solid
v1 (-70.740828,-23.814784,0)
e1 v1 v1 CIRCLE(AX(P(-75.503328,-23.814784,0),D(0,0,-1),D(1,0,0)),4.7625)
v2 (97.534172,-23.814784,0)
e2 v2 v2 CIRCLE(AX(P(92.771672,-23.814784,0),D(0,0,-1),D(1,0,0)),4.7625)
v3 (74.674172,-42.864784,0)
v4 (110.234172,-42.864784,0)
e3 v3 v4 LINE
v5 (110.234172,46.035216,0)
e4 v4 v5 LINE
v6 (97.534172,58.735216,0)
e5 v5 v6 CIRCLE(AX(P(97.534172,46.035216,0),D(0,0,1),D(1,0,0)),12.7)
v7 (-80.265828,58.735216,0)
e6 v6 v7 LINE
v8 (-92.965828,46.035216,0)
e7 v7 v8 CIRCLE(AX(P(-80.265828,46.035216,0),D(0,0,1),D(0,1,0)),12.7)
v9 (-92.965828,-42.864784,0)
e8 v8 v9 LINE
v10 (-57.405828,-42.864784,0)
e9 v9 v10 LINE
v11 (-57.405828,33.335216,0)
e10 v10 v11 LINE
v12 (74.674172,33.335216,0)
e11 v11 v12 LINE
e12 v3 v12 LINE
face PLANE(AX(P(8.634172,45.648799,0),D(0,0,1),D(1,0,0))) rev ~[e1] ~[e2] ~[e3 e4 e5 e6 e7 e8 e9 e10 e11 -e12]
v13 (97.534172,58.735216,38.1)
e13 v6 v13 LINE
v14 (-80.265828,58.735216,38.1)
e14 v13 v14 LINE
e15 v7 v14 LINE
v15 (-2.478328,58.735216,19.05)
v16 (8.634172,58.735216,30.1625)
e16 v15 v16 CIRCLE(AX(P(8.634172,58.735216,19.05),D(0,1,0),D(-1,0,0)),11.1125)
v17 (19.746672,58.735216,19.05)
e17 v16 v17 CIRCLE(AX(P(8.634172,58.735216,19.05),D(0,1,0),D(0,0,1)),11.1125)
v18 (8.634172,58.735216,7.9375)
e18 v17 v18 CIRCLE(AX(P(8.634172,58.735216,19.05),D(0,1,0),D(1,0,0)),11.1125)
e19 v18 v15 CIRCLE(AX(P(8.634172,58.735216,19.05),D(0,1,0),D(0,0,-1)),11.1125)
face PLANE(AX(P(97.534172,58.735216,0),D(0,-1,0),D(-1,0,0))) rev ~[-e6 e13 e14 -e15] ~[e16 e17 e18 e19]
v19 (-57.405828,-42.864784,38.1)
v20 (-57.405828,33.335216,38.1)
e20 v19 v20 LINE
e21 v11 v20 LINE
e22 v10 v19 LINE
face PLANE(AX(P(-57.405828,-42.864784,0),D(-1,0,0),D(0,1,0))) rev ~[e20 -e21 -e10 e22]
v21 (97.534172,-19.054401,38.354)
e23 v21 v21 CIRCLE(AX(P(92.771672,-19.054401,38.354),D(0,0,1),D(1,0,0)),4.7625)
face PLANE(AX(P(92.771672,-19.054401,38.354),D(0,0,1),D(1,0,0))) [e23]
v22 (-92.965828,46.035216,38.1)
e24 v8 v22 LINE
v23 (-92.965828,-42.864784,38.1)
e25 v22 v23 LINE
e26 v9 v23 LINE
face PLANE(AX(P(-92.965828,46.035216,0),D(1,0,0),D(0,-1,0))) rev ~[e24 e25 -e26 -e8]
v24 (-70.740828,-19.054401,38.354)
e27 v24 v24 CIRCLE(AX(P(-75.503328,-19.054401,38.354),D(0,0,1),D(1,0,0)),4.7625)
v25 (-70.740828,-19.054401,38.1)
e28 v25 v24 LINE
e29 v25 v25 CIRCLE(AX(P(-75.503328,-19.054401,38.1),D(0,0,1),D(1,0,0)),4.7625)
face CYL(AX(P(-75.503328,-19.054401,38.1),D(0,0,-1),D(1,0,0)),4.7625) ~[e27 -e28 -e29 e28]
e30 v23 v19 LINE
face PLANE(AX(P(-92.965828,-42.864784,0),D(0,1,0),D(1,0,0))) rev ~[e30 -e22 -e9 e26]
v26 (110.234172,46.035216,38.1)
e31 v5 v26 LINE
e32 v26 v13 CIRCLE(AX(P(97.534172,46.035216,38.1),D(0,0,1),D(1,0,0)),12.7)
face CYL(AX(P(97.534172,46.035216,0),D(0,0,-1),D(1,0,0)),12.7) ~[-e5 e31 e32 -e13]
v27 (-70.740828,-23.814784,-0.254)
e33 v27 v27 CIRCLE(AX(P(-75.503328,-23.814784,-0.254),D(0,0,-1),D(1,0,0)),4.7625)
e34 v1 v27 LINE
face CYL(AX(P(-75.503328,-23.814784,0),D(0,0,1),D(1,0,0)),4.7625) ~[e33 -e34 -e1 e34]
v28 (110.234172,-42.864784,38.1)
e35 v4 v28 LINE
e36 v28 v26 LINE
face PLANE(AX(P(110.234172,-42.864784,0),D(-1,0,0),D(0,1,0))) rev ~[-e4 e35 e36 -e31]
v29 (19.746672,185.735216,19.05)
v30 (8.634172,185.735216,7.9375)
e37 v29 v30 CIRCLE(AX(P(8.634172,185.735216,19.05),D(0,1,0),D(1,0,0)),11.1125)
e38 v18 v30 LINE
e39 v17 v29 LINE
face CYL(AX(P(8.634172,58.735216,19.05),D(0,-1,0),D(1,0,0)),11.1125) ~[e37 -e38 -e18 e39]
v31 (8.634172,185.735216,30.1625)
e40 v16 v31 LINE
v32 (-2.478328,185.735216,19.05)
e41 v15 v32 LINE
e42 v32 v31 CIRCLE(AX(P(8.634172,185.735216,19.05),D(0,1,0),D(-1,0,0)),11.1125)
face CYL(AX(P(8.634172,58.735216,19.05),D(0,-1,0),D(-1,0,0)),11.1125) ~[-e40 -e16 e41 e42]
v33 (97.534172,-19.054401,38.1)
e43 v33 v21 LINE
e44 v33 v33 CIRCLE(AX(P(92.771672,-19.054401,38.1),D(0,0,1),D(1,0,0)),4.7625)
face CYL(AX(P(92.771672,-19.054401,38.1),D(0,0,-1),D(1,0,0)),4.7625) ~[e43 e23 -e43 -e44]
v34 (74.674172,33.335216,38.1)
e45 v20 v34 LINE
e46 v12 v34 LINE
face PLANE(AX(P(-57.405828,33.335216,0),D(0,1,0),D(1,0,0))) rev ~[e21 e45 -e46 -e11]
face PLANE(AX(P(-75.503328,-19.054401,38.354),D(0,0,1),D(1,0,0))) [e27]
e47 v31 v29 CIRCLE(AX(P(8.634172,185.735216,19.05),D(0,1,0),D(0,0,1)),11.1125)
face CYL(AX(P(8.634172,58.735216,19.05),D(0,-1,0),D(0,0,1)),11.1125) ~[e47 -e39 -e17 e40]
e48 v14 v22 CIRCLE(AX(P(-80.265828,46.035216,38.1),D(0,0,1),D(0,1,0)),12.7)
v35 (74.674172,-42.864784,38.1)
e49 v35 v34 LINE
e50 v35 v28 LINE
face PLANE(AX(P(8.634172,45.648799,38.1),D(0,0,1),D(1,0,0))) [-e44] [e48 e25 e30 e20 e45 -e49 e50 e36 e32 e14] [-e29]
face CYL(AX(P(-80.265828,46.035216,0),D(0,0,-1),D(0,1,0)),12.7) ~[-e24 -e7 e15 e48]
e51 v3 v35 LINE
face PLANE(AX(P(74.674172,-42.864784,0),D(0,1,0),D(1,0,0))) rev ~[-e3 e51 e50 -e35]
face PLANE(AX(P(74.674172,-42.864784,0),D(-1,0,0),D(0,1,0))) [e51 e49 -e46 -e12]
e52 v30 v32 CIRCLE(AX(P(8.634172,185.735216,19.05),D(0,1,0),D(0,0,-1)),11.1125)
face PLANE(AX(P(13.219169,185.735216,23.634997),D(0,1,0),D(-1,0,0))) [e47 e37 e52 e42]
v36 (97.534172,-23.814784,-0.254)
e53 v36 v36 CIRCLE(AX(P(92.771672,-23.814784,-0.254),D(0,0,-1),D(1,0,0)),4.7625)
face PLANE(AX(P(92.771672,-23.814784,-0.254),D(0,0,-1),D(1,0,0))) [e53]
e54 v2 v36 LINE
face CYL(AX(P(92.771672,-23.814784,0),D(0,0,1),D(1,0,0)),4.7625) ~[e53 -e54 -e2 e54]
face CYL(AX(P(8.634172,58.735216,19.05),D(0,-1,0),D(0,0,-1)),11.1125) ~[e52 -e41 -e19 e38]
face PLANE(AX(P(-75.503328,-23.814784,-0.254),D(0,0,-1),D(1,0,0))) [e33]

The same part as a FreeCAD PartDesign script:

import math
import FreeCAD as App
import Part
import Sketcher

V = App.Vector
Q = App.Units.Quantity

doc = App.newDocument("Part")
body = doc.addObject("PartDesign::Body", "Body")

# Sketch on XY plane
sketch1 = body.newObject("Sketcher::SketchObject", "Sketch")
sketch1.AttachmentSupport = (doc.getObject("XY_Plane"), [""])
sketch1.MapMode = "FlatFace"
sketch1.addGeometry([
    Part.LineSegment(V(97.534172, 58.735216, 0), V(-80.265828, 58.735216, 0)),  # 0
    Part.ArcOfCircle(Part.Circle(V(-80.265828, 46.035216, 0), V(0, 0, 1), 12.7), math.radians(90), math.radians(180)),  # 1
    Part.LineSegment(V(-92.965828, 46.035216, 0), V(-92.965828, -42.864784, 0)),  # 2
    Part.LineSegment(V(-92.965828, -42.864784, 0), V(-57.405828, -42.864784, 0)),  # 3
    Part.LineSegment(V(-57.405828, -42.864784, 0), V(-57.405828, 33.335216, 0)),  # 4
    Part.LineSegment(V(-57.405828, 33.335216, 0), V(74.674172, 33.335216, 0)),  # 5
    Part.LineSegment(V(74.674172, 33.335216, 0), V(74.674172, -42.864784, 0)),  # 6
    Part.LineSegment(V(74.674172, -42.864784, 0), V(110.234172, -42.864784, 0)),  # 7
    Part.LineSegment(V(110.234172, -42.864784, 0), V(110.234172, 46.035216, 0)),  # 8
    Part.ArcOfCircle(Part.Circle(V(97.534172, 46.035216, 0), V(0, 0, 1), 12.7), math.radians(0), math.radians(90)),  # 9
], False)
sketch1.addConstraint([
    Sketcher.Constraint("Tangent", 0, 2, 1, 1),
    Sketcher.Constraint("Tangent", 1, 2, 2, 1),
    Sketcher.Constraint("Coincident", 2, 2, 3, 1),
    Sketcher.Constraint("Coincident", 3, 2, 4, 1),
    Sketcher.Constraint("Coincident", 4, 2, 5, 1),
    Sketcher.Constraint("Coincident", 5, 2, 6, 1),
    Sketcher.Constraint("Coincident", 6, 2, 7, 1),
    Sketcher.Constraint("Coincident", 7, 2, 8, 1),
    Sketcher.Constraint("Tangent", 8, 2, 9, 1),
    Sketcher.Constraint("Tangent", 9, 2, 0, 1),
    Sketcher.Constraint("Horizontal", 0),
    Sketcher.Constraint("Vertical", 2),
    Sketcher.Constraint("Horizontal", 3),
    Sketcher.Constraint("Vertical", 4),
    Sketcher.Constraint("Horizontal", 5),
    Sketcher.Constraint("Vertical", 6),
    Sketcher.Constraint("Horizontal", 7),
    Sketcher.Constraint("Vertical", 8),
    Sketcher.Constraint("Equal", 1, 9),
    Sketcher.Constraint("Horizontal", 3, 2, 6, 2),
    Sketcher.Constraint("Equal", 3, 7),
    Sketcher.Constraint("Radius", 1, Q("0.5 in")),
    Sketcher.Constraint("DistanceX", 0, 2, 0, 1, Q("7 in")),
    Sketcher.Constraint("DistanceY", 4, 1, 4, 2, Q("3 in")),
    Sketcher.Constraint("DistanceX", 3, 1, 3, 2, Q("1.4 in")),
    Sketcher.Constraint("DistanceY", 2, 2, 2, 1, Q("3.5 in")),
    Sketcher.Constraint("DistanceX", 1, 3, -1, 1, 80.265828),
    Sketcher.Constraint("DistanceY", -1, 1, 1, 3, 46.035216),
])
pad1 = body.newObject("PartDesign::Pad", "Pad")
pad1.Profile = sketch1
pad1.Length = Q("1.5 in")

# Sketch on XY plane
sketch2 = body.newObject("Sketcher::SketchObject", "Sketch001")
sketch2.AttachmentSupport = (doc.getObject("XY_Plane"), [""])
sketch2.MapMode = "FlatFace"
sketch2.AttachmentOffset = App.Placement(V(0, 0, 1.5 * 25.4), App.Rotation())
sketch2.addGeometry([
    Part.Circle(V(-75.503328, -19.054401, 0), V(0, 0, 1), 4.7625),
    Part.Circle(V(92.771672, -19.054401, 0), V(0, 0, 1), 4.7625),
], False)
sketch2.addConstraint([
    Sketcher.Constraint("Equal", 0, 1),
    Sketcher.Constraint("Horizontal", 0, 3, 1, 3),
    Sketcher.Constraint("Diameter", 0, Q("0.375 in")),
    Sketcher.Constraint("DistanceX", 0, 3, 1, 3, Q("6.625 in")),
    Sketcher.Constraint("DistanceY", 0, 3, -1, 1, 19.054401),
    Sketcher.Constraint("DistanceX", 0, 3, -1, 1, 75.503328),
])
pad2 = body.newObject("PartDesign::Pad", "Pad001")
pad2.Profile = sketch2
pad2.Length = Q("0.01 in")

# Sketch on XZ plane
sketch3 = body.newObject("Sketcher::SketchObject", "Sketch002")
sketch3.AttachmentSupport = (doc.getObject("XZ_Plane"), [""])
sketch3.MapMode = "FlatFace"
sketch3.AttachmentOffset = App.Placement(V(0, 0, -58.735216), App.Rotation())
sketch3.addGeometry([
    Part.ArcOfCircle(Part.Circle(V(8.634172, 19.05, 0), V(0, 0, 1), 11.1125), math.radians(180), math.radians(270)),
    Part.ArcOfCircle(Part.Circle(V(8.634172, 19.05, 0), V(0, 0, 1), 11.1125), math.radians(90), math.radians(180)),
    Part.ArcOfCircle(Part.Circle(V(8.634172, 19.05, 0), V(0, 0, 1), 11.1125), math.radians(0), math.radians(90)),
    Part.ArcOfCircle(Part.Circle(V(8.634172, 19.05, 0), V(0, 0, 1), 11.1125), math.radians(-90), math.radians(0)),
], False)
sketch3.addConstraint([
    Sketcher.Constraint("Tangent", 0, 1, 1, 2),
    Sketcher.Constraint("Tangent", 1, 1, 2, 2),
    Sketcher.Constraint("Tangent", 2, 1, 3, 2),
    Sketcher.Constraint("Tangent", 3, 1, 0, 2),
    Sketcher.Constraint("Equal", 0, 1),
    Sketcher.Constraint("Horizontal", 3, 3, 0, 1),
    Sketcher.Constraint("Horizontal", 0, 1, 2, 1),
    Sketcher.Constraint("Vertical", 3, 3, 1, 1),
    Sketcher.Constraint("Vertical", 1, 1, 3, 1),
    Sketcher.Constraint("Radius", 0, Q("0.4375 in")),
    Sketcher.Constraint("DistanceY", -1, 1, 0, 3, Q("0.75 in")),
    Sketcher.Constraint("DistanceX", -1, 1, 0, 3, 8.634172),
])
pad3 = body.newObject("PartDesign::Pad", "Pad002")
pad3.Profile = sketch3
pad3.Length = Q("5 in")
pad3.Reversed = True

# Sketch on XY plane
sketch4 = body.newObject("Sketcher::SketchObject", "Sketch003")
sketch4.AttachmentSupport = (doc.getObject("XY_Plane"), [""])
sketch4.MapMode = "FlatFace"
sketch4.addGeometry([
    Part.Circle(V(-75.503328, -23.814784, 0), V(0, 0, 1), 4.7625),
    Part.Circle(V(92.771672, -23.814784, 0), V(0, 0, 1), 4.7625),
], False)
sketch4.addConstraint([
    Sketcher.Constraint("Equal", 0, 1),
    Sketcher.Constraint("Horizontal", 0, 3, 1, 3),
    Sketcher.Constraint("Diameter", 0, Q("0.375 in")),
    Sketcher.Constraint("DistanceX", 0, 3, 1, 3, Q("6.625 in")),
    Sketcher.Constraint("DistanceX", 0, 3, -1, 1, 75.503328),
    Sketcher.Constraint("DistanceY", 0, 3, -1, 1, 23.814784),
])
pad4 = body.newObject("PartDesign::Pad", "Pad003")
pad4.Profile = sketch4
pad4.Length = Q("0.01 in")
pad4.Reversed = True

doc.recompute()
